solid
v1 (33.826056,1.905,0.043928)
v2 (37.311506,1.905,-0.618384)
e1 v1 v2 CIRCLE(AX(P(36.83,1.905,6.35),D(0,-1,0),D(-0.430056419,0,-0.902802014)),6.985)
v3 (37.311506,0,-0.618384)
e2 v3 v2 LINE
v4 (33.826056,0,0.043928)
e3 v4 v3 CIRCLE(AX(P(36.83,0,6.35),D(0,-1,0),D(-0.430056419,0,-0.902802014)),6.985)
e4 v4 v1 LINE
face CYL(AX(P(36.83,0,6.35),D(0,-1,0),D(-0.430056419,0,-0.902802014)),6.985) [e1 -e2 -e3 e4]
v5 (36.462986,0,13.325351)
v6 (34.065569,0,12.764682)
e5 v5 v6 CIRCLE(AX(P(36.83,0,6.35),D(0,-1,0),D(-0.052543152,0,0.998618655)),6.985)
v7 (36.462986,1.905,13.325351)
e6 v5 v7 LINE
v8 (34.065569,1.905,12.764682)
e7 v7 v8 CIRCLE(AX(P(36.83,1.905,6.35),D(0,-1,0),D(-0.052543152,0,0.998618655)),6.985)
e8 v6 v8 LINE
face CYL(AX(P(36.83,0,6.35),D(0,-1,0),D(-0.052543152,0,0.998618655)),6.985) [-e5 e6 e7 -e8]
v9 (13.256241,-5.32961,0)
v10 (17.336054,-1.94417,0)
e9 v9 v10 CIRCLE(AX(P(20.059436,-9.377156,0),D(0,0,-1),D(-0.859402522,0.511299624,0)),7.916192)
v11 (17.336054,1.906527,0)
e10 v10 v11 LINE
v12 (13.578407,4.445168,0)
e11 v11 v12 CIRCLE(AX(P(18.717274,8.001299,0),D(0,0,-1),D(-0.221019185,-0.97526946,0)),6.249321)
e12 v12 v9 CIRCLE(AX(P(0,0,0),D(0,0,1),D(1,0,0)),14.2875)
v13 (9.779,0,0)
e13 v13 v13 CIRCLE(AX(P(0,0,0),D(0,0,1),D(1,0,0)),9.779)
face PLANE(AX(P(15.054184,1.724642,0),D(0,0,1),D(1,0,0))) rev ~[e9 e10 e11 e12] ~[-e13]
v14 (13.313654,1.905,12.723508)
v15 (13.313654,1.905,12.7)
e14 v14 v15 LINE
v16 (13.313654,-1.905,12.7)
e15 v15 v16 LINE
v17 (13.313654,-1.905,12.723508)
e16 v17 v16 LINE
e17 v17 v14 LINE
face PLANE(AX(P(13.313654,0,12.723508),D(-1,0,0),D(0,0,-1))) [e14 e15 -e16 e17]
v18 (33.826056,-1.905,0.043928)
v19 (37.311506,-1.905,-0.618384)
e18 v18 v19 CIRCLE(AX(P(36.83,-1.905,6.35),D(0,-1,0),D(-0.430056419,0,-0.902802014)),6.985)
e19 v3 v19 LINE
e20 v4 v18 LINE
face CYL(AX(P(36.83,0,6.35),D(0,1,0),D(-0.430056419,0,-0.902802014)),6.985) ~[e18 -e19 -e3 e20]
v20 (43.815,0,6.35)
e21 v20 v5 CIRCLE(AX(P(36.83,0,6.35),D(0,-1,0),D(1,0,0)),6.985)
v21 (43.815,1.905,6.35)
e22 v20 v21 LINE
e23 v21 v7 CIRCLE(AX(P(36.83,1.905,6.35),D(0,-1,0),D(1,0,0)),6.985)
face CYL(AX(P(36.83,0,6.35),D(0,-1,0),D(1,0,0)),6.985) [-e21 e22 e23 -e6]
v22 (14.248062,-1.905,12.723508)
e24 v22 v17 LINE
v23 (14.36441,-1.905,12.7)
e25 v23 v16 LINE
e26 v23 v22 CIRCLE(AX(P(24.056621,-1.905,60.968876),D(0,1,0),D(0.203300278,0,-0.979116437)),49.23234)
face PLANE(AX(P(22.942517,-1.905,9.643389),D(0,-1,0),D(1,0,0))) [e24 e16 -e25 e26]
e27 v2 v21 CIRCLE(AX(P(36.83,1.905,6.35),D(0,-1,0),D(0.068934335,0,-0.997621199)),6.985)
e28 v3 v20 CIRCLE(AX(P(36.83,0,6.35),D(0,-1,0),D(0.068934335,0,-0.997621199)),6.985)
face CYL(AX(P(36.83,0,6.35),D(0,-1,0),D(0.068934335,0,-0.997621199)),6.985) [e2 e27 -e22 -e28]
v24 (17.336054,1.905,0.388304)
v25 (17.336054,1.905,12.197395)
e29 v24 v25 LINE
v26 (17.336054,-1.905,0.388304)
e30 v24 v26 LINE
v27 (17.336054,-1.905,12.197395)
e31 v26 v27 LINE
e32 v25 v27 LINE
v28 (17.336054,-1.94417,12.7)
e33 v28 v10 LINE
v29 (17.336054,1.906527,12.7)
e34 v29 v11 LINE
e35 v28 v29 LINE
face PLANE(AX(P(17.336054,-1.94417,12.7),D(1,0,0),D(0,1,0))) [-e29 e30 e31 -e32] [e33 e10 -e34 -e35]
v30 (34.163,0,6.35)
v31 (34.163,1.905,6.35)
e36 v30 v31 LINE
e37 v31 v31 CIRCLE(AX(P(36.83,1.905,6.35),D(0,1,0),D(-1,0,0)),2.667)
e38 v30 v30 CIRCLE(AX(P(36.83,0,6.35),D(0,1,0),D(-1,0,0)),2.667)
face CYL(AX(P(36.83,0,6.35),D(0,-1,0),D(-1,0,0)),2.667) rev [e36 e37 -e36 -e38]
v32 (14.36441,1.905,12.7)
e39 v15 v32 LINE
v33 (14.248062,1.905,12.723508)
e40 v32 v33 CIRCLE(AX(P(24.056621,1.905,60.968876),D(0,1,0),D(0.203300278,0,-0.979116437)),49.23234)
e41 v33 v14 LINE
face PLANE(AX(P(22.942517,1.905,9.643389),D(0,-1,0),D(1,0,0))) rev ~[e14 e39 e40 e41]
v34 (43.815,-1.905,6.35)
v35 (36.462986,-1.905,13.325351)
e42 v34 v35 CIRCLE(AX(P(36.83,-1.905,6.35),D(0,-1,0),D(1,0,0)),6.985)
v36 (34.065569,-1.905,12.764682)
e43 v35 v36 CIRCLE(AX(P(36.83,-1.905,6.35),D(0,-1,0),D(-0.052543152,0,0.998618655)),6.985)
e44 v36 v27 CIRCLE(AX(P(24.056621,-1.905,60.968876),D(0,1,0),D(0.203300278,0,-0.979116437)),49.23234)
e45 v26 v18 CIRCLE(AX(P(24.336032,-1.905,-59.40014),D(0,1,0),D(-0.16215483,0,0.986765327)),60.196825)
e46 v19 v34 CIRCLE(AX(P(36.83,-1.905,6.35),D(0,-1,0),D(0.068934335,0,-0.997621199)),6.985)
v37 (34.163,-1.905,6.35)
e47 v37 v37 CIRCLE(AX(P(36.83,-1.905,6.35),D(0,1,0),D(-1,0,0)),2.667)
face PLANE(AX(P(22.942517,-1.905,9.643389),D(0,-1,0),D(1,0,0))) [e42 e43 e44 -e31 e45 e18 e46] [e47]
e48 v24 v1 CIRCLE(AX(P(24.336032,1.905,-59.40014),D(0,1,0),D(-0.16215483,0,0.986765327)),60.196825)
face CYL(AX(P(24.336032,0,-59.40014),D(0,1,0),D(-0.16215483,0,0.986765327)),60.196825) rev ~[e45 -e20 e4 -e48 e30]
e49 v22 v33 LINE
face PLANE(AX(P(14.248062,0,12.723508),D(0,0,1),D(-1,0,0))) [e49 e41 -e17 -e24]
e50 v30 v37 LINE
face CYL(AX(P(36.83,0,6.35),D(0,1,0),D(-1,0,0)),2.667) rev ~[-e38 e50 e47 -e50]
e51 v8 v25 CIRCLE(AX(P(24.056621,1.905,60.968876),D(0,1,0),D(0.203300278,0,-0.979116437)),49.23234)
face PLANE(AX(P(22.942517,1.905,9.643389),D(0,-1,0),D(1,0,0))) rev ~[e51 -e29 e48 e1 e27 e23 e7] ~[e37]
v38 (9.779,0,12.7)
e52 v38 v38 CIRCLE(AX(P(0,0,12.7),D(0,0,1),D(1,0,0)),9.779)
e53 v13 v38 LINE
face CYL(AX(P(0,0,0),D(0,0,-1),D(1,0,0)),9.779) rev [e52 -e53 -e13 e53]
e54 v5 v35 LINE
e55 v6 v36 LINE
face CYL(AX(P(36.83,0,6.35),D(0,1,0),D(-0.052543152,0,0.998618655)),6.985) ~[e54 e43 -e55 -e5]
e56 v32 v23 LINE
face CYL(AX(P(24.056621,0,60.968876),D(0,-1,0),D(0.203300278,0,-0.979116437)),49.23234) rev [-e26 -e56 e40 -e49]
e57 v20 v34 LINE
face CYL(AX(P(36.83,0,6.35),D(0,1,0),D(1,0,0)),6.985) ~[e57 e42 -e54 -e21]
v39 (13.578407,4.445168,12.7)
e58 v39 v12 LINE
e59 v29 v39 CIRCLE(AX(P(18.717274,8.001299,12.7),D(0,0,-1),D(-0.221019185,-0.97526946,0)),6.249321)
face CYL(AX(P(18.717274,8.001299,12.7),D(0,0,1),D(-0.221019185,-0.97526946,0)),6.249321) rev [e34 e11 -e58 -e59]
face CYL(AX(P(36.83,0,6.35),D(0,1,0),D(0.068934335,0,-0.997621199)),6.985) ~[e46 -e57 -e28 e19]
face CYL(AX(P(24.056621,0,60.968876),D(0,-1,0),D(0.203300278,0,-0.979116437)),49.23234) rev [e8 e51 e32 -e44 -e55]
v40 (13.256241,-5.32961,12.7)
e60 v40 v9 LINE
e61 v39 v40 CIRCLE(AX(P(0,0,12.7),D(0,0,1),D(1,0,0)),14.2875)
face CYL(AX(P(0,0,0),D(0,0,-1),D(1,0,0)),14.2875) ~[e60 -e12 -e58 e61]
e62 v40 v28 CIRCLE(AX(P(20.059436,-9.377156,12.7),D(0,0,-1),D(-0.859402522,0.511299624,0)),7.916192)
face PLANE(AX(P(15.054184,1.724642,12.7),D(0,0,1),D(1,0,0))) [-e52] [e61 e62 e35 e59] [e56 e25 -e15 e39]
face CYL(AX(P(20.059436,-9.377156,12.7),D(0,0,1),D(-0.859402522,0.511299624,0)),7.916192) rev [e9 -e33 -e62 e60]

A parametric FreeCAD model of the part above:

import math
import FreeCAD as App
import Part
import Sketcher
from FreeCAD import Vector
Q = App.Units.Quantity

doc = App.newDocument("Part")
body = doc.addObject("PartDesign::Body", "Body")

# Sketch on XY plane
sketch1 = doc.addObject("Sketcher::SketchObject", "Sketch")
body.addObject(sketch1)
sketch1.AttachmentSupport = (doc.XY_Plane, [""])
sketch1.MapMode = "FlatFace"
sketch1.addGeometry([
    Part.Circle(Vector(0, 0, 0), Vector(0, 0, 1), 14.2875),
    Part.Circle(Vector(0, 0, 0), Vector(0, 0, 1), 9.779),
], False)
sketch1.addConstraint([
    Sketcher.Constraint("Coincident", 0, 3, -1, 1),
    Sketcher.Constraint("Coincident", 1, 3, -1, 1),
    Sketcher.Constraint("Diameter", 1, Q("0.77 in")),
    Sketcher.Constraint("Diameter", 0, Q("1.125 in")),
])
pad1 = doc.addObject("PartDesign::Pad", "Pad")
body.addObject(pad1)
pad1.Profile = sketch1
pad1.Length = Q("0.5 in")

# Sketch on XZ plane
sketch2 = doc.addObject("Sketcher::SketchObject", "Sketch001")
body.addObject(sketch2)
sketch2.AttachmentSupport = (doc.XZ_Plane, [""])
sketch2.MapMode = "FlatFace"
sketch2.addGeometry([
    Part.LineSegment(Vector(13.313654, 12.723508, 0), Vector(13.313654, 0, 0)),  # 0
    Part.LineSegment(Vector(13.313654, 0, 0), Vector(14.574826, 0, 0)),  # 1
    Part.ArcOfCircle(Part.Circle(Vector(24.336032, -59.40014, 0), Vector(0, 0, 1), 60.196825), math.radians(80.929485), math.radians(99.331992)),  # 2
    Part.ArcOfCircle(Part.Circle(Vector(36.83, 6.35, 0), Vector(0, 0, 1), 6.985), math.radians(-115.471141), math.radians(-86.047219)),  # 3
    Part.ArcOfCircle(Part.Circle(Vector(36.83, 6.35, 0), Vector(0, 0, 1), 6.985), math.radians(-86.047219), math.radians(0)),  # 4
    Part.ArcOfCircle(Part.Circle(Vector(36.83, 6.35, 0), Vector(0, 0, 1), 6.985), math.radians(0), math.radians(93.011888)),  # 5
    Part.ArcOfCircle(Part.Circle(Vector(36.83, 6.35, 0), Vector(0, 0, 1), 6.985), math.radians(93.011888), math.radians(113.313801)),  # 6
    Part.ArcOfCircle(Part.Circle(Vector(24.056621, 60.968876, 0), Vector(0, 0, 1), 49.23234), math.radians(-101.491935), math.radians(-78.269983)),  # 7
    Part.LineSegment(Vector(14.248062, 12.723508, 0), Vector(13.313654, 12.723508, 0)),  # 8
    Part.Circle(Vector(36.83, 6.35, 0), Vector(0, 0, 1), 2.667),  # 9
], False)
sketch2.addConstraint([
    Sketcher.Constraint("Coincident", 0, 2, 1, 1),
    Sketcher.Constraint("Coincident", 1, 2, 2, 2),
    Sketcher.Constraint("Coincident", 2, 1, 3, 1),
    Sketcher.Constraint("Tangent", 3, 2, 4, 1),
    Sketcher.Constraint("Tangent", 4, 2, 5, 1),
    Sketcher.Constraint("Tangent", 5, 2, 6, 1),
    Sketcher.Constraint("Coincident", 6, 2, 7, 2),
    Sketcher.Constraint("Coincident", 7, 1, 8, 1),
    Sketcher.Constraint("Coincident", 8, 2, 0, 1),
    Sketcher.Constraint("Vertical", 0),
    Sketcher.Constraint("Horizontal", 1),
    Sketcher.Constraint("Horizontal", 8),
    Sketcher.Constraint("Coincident", 5, 3, 3, 3),
    Sketcher.Constraint("Coincident", 9, 3, 3, 3),
    Sketcher.Constraint("Equal", 5, 6),
    Sketcher.Constraint("PointOnObject", 0, 2, -1),
    Sketcher.Constraint("Horizontal", 9, 3, 4, 2),
    Sketcher.Constraint("Diameter", 9, Q("0.21 in")),
    Sketcher.Constraint("Radius", 3, Q("0.275 in")),
    Sketcher.Constraint("DistanceX", -1, 1, 3, 3, Q("1.45 in")),
    Sketcher.Constraint("DistanceY", -1, 1, 3, 3, Q("0.25 in")),
    Sketcher.Constraint("Radius", 7, Q("49.23234 mm")),
    Sketcher.Constraint("Radius", 2, Q("60.196825 mm")),
    Sketcher.Constraint("DistanceX", 1, 1, 1, 2, Q("1.261172 mm")),
    Sketcher.Constraint("DistanceX", 8, 2, 8, 1, Q("0.934408 mm")),
    Sketcher.Constraint("DistanceY", 0, 2, 0, 1, Q("12.723508 mm")),
    Sketcher.Constraint("DistanceX", -1, 1, 2, 3, Q("24.336032 mm")),
    Sketcher.Constraint("DistanceY", 2, 3, -1, 1, Q("59.40014 mm")),
    Sketcher.Constraint("DistanceX", -1, 1, 7, 3, Q("24.056621 mm")),
    Sketcher.Constraint("DistanceY", -1, 1, 5, 2, Q("13.325351 mm")),
    Sketcher.Constraint("DistanceX", 2, 1, 3, 2, Q("3.48545 mm")),
])
pad2 = doc.addObject("PartDesign::Pad", "Pad001")
body.addObject(pad2)
pad2.Profile = sketch2
pad2.Type = "TwoLengths"
pad2.Length = Q("0.075 in")
pad2.Length2 = Q("0.075 in")

# Sketch on XY plane
sketch3 = doc.addObject("Sketcher::SketchObject", "Sketch002")
body.addObject(sketch3)
sketch3.AttachmentSupport = (doc.XY_Plane, [""])
sketch3.MapMode = "FlatFace"
sketch3.AttachmentOffset = App.Placement(Vector(0, 0, 0.5 * 25.4), App.Rotation())
sketch3.addGeometry([
    Part.ArcOfCircle(Part.Circle(Vector(18.717274, 8.001299, 0), Vector(0, 0, 1), 6.249321), math.radians(-145.316504), math.radians(-102.768902)),  # 0
    Part.ArcOfCircle(Part.Circle(Vector(0, 0, 0), Vector(0, 0, 1), 14.2875), math.radians(7.662256), math.radians(18.126914)),  # 1
    Part.LineSegment(Vector(14.15993, 1.905, 0), Vector(13.494686, 1.905, 0)),  # 2
    Part.LineSegment(Vector(13.494686, 1.905, 0), Vector(13.369112, -1.905, 0)),  # 3
    Part.LineSegment(Vector(13.369112, -1.905, 0), Vector(14.15993, -1.905, 0)),  # 4
    Part.ArcOfCircle(Part.Circle(Vector(0, 0, 0), Vector(0, 0, 1), 14.2875), math.radians(-21.902365), math.radians(-7.662256)),  # 5
    Part.ArcOfCircle(Part.Circle(Vector(20.059436, -9.377156, 0), Vector(0, 0, 1), 7.916192), math.radians(110.122399), math.radians(149.249564)),  # 6
    Part.LineSegment(Vector(17.336054, -1.94417, 0), Vector(17.336054, 1.906527, 0)),  # 7
], False)
sketch3.addConstraint([
    Sketcher.Constraint("Coincident", 0, 1, 1, 2),
    Sketcher.Constraint("Coincident", 1, 1, 2, 1),
    Sketcher.Constraint("Coincident", 2, 2, 3, 1),
    Sketcher.Constraint("Coincident", 3, 2, 4, 1),
    Sketcher.Constraint("Coincident", 4, 2, 5, 2),
    Sketcher.Constraint("Coincident", 5, 1, 6, 2),
    Sketcher.Constraint("Coincident", 6, 1, 7, 1),
    Sketcher.Constraint("Coincident", 7, 2, 0, 2),
    Sketcher.Constraint("Horizontal", 2),
    Sketcher.Constraint("Horizontal", 4),
    Sketcher.Constraint("Vertical", 7),
    Sketcher.Constraint("Coincident", 1, 3, -1, 1),
    Sketcher.Constraint("Coincident", 5, 3, -1, 1),
    Sketcher.Constraint("Equal", 1, 5),
    Sketcher.Constraint("Vertical", 1, 1, 4, 2),
    Sketcher.Constraint("Radius", 1, Q("0.5625 in")),
    Sketcher.Constraint("DistanceY", 3, 2, 2, 2, Q("0.15 in")),
    Sketcher.Constraint("Radius", 0, Q("6.249321 mm")),
    Sketcher.Constraint("Radius", 6, Q("7.916192 mm")),
    Sketcher.Constraint("DistanceX", 4, 1, 4, 2, Q("0.790818 mm")),
    Sketcher.Constraint("DistanceY", -1, 1, 0, 3, Q("8.001299 mm")),
    Sketcher.Constraint("Distance", 3, Q("3.812069 mm")),
    Sketcher.Constraint("DistanceY", 7, 1, 7, 2, Q("3.850696 mm")),
    Sketcher.Constraint("DistanceY", -1, 1, 0, 1, Q("4.445168 mm")),
    Sketcher.Constraint("DistanceX", -1, 1, 5, 1, Q("13.256241 mm")),
    Sketcher.Constraint("DistanceY", 6, 1, -1, 1, Q("1.94417 mm")),
])
pad3 = doc.addObject("PartDesign::Pad", "Pad002")
body.addObject(pad3)
pad3.Profile = sketch3
pad3.Length = Q("0.5 in")
pad3.Reversed = True

doc.recompute()
